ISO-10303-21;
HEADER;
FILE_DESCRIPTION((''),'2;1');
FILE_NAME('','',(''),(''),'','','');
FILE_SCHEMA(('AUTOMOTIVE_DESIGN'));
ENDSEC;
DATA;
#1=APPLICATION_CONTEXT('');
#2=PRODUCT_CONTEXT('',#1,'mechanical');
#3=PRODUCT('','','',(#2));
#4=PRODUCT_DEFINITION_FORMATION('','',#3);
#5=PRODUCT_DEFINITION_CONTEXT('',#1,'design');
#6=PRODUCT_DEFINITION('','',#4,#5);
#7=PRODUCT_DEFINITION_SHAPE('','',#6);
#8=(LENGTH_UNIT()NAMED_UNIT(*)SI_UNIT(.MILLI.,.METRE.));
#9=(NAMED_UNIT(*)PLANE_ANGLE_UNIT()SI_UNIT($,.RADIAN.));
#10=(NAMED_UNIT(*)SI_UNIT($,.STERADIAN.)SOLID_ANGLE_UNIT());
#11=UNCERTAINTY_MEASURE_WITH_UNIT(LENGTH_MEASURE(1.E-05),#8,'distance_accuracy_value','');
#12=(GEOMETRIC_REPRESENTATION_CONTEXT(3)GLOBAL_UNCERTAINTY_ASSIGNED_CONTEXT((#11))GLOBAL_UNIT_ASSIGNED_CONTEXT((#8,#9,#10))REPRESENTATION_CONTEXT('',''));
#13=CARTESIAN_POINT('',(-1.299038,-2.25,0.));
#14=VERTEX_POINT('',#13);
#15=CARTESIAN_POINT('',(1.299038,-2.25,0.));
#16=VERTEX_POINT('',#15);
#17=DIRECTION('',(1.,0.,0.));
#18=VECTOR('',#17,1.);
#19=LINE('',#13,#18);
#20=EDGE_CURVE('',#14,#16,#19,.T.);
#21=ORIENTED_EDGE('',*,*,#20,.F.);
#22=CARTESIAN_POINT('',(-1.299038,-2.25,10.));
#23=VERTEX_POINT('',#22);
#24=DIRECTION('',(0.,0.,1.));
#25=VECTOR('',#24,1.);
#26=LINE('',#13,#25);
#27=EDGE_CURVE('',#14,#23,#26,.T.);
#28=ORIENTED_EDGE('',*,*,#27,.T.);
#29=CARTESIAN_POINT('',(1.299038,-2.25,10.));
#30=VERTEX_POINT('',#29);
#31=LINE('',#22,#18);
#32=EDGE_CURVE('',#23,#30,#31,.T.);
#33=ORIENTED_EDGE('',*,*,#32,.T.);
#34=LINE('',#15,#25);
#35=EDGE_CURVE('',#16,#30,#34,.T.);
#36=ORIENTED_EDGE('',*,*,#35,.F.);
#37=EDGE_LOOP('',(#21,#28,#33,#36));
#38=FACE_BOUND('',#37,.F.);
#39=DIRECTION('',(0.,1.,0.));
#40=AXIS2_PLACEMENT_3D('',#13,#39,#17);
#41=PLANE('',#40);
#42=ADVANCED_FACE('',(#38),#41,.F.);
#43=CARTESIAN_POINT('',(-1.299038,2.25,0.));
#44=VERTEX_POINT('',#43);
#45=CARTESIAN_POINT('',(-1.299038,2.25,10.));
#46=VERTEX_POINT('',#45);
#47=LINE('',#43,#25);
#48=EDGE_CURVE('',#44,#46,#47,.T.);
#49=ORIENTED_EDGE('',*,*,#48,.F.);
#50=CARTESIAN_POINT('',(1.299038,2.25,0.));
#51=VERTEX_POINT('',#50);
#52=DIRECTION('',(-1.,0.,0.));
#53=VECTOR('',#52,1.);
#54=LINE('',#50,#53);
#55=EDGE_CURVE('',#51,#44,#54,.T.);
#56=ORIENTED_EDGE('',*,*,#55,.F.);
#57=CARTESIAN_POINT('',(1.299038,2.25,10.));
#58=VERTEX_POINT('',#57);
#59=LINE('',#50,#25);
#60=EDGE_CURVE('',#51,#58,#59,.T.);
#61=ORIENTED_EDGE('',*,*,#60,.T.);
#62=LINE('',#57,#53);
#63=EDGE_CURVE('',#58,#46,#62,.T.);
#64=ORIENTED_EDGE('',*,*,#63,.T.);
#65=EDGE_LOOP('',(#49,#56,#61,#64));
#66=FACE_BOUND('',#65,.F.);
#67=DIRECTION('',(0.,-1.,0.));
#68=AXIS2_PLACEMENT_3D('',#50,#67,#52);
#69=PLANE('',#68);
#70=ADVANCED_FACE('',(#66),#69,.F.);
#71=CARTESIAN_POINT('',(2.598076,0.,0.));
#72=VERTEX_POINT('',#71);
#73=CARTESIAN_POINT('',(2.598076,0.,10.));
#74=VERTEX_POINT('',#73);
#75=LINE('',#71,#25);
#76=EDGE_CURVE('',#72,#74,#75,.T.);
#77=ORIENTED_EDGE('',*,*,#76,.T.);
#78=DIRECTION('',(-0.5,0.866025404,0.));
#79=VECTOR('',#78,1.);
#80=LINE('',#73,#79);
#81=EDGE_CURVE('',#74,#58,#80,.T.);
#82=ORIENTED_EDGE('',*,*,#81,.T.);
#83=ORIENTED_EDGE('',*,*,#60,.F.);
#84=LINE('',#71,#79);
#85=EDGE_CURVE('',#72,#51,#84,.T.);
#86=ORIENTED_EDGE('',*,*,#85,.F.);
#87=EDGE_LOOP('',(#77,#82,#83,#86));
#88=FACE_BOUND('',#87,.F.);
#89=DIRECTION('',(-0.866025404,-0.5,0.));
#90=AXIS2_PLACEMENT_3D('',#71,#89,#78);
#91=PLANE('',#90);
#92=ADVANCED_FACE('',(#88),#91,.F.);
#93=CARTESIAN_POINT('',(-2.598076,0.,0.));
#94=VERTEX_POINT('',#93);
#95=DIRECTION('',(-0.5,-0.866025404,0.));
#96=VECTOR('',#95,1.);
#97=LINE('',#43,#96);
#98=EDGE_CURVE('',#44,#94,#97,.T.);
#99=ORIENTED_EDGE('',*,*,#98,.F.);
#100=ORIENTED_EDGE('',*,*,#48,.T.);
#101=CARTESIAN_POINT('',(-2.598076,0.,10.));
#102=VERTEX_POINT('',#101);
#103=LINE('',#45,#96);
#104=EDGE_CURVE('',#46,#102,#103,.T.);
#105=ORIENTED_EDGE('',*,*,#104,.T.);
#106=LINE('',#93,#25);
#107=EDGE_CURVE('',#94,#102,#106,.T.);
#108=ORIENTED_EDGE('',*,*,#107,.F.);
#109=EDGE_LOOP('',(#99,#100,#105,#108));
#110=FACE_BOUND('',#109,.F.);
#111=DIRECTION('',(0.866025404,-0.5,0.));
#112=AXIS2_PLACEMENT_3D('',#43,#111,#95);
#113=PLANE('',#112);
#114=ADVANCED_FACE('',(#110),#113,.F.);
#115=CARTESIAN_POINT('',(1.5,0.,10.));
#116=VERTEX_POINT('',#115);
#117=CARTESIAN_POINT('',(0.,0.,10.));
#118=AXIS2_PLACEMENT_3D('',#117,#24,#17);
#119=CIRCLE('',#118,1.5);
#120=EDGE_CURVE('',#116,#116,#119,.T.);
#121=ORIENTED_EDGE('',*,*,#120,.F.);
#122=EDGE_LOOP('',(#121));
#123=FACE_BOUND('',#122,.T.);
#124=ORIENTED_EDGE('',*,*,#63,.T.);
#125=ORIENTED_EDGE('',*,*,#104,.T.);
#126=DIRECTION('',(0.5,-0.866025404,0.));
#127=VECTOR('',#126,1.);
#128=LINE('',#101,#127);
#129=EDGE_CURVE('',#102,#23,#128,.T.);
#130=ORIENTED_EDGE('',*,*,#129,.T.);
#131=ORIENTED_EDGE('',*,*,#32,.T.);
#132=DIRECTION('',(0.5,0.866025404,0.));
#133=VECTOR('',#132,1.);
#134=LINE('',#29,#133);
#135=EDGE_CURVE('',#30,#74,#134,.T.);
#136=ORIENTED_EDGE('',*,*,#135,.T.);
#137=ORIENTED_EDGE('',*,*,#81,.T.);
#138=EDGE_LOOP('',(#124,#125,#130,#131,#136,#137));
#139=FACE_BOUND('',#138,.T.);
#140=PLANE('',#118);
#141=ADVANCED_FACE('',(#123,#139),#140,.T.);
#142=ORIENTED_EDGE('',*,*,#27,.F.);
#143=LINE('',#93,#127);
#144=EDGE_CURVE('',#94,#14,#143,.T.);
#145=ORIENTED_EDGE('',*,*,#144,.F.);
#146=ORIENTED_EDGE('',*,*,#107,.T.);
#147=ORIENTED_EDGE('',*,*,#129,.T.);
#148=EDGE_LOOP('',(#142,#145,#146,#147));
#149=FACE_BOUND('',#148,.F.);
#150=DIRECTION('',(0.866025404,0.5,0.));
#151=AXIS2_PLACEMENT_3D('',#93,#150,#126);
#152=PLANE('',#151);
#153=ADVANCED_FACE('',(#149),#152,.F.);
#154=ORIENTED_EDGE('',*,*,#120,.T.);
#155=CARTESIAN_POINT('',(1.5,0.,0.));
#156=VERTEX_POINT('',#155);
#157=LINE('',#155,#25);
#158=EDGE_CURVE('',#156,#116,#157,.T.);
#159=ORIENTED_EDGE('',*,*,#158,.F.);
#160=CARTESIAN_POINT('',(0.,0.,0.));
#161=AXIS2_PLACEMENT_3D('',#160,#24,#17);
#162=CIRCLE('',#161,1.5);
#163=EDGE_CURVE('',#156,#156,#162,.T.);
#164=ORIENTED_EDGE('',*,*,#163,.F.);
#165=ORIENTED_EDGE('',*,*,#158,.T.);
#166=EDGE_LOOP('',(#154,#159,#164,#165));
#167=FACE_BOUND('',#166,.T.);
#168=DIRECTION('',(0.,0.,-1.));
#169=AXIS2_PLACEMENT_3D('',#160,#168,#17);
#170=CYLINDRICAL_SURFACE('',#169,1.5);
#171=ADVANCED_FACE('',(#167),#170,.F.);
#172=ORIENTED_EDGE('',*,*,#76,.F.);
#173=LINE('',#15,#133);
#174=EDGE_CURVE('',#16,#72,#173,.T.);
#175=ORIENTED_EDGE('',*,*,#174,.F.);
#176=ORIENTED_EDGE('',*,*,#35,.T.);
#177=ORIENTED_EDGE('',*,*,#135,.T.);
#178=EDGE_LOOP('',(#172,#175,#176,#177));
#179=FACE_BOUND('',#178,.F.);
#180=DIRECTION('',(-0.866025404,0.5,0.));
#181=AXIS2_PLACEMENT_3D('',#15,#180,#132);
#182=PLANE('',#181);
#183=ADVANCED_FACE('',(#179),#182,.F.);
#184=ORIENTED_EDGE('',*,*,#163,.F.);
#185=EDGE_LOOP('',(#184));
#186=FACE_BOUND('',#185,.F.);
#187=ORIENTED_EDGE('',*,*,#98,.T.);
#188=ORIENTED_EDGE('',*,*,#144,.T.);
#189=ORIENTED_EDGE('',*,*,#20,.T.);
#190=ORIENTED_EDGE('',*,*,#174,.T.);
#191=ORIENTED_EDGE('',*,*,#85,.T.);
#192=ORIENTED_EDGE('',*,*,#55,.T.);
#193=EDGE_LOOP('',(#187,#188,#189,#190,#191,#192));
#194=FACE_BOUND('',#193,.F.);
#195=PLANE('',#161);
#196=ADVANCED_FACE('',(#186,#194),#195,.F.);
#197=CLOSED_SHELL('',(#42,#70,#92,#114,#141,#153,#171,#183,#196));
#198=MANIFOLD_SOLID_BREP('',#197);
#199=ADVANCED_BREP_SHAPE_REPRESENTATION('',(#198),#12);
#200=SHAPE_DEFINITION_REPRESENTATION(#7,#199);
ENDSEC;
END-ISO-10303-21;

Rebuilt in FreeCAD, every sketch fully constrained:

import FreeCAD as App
import Part
import Sketcher
Q = App.Units.Quantity

doc = App.newDocument("Part")
body = doc.addObject("PartDesign::Body", "Body")

sketch1 = body.newObject("Sketcher::SketchObject", "Sketch")
sketch1.AttachmentSupport = (doc.getObject("XY_Plane"), [""])
sketch1.MapMode = "FlatFace"
sketch1.addGeometry([
    Part.LineSegment(App.Vector(2.598076, 0, 0), App.Vector(1.299038, 2.25, 0)),
    Part.LineSegment(App.Vector(1.299038, 2.25, 0), App.Vector(-1.299038, 2.25, 0)),
    Part.LineSegment(App.Vector(-1.299038, 2.25, 0), App.Vector(-2.598076, 0, 0)),
    Part.LineSegment(App.Vector(-2.598076, 0, 0), App.Vector(-1.299038, -2.25, 0)),
    Part.LineSegment(App.Vector(-1.299038, -2.25, 0), App.Vector(1.299038, -2.25, 0)),
    Part.LineSegment(App.Vector(1.299038, -2.25, 0), App.Vector(2.598076, 0, 0)),
    Part.Circle(App.Vector(0, 0, 0), App.Vector(0, 0, 1), 1.5),
], False)
sketch1.addConstraint([
    Sketcher.Constraint("Coincident", 0, 2, 1, 1),
    Sketcher.Constraint("Coincident", 1, 2, 2, 1),
    Sketcher.Constraint("Coincident", 2, 2, 3, 1),
    Sketcher.Constraint("Coincident", 3, 2, 4, 1),
    Sketcher.Constraint("Coincident", 4, 2, 5, 1),
    Sketcher.Constraint("Coincident", 5, 2, 0, 1),
    Sketcher.Constraint("Horizontal", 1),
    Sketcher.Constraint("Horizontal", 4),
    Sketcher.Constraint("Coincident", 6, 3, -1, 1),
    Sketcher.Constraint("Symmetric", 0, 2, 3, 2, -1, 1),
    Sketcher.Constraint("Symmetric", 2, 2, 5, 2, -1, 1),
    Sketcher.Constraint("PointOnObject", 2, 2, -1),
    Sketcher.Constraint("Parallel", 2, 5),
    Sketcher.Constraint("Vertical", 1, 2, 3, 2),
    Sketcher.Constraint("Diameter", 6, Q("3 mm")),
    Sketcher.Constraint("Angle", 0, Q("120 deg")),
    Sketcher.Constraint("DistanceY", 3, 2, 1, 2, Q("4.5 mm")),
    Sketcher.Constraint("DistanceX", 1, 2, 1, 1, Q("2.598076 mm")),
])
pad1 = body.newObject("PartDesign::Pad", "Pad")
pad1.Profile = sketch1
pad1.Length = 10

doc.recompute()
